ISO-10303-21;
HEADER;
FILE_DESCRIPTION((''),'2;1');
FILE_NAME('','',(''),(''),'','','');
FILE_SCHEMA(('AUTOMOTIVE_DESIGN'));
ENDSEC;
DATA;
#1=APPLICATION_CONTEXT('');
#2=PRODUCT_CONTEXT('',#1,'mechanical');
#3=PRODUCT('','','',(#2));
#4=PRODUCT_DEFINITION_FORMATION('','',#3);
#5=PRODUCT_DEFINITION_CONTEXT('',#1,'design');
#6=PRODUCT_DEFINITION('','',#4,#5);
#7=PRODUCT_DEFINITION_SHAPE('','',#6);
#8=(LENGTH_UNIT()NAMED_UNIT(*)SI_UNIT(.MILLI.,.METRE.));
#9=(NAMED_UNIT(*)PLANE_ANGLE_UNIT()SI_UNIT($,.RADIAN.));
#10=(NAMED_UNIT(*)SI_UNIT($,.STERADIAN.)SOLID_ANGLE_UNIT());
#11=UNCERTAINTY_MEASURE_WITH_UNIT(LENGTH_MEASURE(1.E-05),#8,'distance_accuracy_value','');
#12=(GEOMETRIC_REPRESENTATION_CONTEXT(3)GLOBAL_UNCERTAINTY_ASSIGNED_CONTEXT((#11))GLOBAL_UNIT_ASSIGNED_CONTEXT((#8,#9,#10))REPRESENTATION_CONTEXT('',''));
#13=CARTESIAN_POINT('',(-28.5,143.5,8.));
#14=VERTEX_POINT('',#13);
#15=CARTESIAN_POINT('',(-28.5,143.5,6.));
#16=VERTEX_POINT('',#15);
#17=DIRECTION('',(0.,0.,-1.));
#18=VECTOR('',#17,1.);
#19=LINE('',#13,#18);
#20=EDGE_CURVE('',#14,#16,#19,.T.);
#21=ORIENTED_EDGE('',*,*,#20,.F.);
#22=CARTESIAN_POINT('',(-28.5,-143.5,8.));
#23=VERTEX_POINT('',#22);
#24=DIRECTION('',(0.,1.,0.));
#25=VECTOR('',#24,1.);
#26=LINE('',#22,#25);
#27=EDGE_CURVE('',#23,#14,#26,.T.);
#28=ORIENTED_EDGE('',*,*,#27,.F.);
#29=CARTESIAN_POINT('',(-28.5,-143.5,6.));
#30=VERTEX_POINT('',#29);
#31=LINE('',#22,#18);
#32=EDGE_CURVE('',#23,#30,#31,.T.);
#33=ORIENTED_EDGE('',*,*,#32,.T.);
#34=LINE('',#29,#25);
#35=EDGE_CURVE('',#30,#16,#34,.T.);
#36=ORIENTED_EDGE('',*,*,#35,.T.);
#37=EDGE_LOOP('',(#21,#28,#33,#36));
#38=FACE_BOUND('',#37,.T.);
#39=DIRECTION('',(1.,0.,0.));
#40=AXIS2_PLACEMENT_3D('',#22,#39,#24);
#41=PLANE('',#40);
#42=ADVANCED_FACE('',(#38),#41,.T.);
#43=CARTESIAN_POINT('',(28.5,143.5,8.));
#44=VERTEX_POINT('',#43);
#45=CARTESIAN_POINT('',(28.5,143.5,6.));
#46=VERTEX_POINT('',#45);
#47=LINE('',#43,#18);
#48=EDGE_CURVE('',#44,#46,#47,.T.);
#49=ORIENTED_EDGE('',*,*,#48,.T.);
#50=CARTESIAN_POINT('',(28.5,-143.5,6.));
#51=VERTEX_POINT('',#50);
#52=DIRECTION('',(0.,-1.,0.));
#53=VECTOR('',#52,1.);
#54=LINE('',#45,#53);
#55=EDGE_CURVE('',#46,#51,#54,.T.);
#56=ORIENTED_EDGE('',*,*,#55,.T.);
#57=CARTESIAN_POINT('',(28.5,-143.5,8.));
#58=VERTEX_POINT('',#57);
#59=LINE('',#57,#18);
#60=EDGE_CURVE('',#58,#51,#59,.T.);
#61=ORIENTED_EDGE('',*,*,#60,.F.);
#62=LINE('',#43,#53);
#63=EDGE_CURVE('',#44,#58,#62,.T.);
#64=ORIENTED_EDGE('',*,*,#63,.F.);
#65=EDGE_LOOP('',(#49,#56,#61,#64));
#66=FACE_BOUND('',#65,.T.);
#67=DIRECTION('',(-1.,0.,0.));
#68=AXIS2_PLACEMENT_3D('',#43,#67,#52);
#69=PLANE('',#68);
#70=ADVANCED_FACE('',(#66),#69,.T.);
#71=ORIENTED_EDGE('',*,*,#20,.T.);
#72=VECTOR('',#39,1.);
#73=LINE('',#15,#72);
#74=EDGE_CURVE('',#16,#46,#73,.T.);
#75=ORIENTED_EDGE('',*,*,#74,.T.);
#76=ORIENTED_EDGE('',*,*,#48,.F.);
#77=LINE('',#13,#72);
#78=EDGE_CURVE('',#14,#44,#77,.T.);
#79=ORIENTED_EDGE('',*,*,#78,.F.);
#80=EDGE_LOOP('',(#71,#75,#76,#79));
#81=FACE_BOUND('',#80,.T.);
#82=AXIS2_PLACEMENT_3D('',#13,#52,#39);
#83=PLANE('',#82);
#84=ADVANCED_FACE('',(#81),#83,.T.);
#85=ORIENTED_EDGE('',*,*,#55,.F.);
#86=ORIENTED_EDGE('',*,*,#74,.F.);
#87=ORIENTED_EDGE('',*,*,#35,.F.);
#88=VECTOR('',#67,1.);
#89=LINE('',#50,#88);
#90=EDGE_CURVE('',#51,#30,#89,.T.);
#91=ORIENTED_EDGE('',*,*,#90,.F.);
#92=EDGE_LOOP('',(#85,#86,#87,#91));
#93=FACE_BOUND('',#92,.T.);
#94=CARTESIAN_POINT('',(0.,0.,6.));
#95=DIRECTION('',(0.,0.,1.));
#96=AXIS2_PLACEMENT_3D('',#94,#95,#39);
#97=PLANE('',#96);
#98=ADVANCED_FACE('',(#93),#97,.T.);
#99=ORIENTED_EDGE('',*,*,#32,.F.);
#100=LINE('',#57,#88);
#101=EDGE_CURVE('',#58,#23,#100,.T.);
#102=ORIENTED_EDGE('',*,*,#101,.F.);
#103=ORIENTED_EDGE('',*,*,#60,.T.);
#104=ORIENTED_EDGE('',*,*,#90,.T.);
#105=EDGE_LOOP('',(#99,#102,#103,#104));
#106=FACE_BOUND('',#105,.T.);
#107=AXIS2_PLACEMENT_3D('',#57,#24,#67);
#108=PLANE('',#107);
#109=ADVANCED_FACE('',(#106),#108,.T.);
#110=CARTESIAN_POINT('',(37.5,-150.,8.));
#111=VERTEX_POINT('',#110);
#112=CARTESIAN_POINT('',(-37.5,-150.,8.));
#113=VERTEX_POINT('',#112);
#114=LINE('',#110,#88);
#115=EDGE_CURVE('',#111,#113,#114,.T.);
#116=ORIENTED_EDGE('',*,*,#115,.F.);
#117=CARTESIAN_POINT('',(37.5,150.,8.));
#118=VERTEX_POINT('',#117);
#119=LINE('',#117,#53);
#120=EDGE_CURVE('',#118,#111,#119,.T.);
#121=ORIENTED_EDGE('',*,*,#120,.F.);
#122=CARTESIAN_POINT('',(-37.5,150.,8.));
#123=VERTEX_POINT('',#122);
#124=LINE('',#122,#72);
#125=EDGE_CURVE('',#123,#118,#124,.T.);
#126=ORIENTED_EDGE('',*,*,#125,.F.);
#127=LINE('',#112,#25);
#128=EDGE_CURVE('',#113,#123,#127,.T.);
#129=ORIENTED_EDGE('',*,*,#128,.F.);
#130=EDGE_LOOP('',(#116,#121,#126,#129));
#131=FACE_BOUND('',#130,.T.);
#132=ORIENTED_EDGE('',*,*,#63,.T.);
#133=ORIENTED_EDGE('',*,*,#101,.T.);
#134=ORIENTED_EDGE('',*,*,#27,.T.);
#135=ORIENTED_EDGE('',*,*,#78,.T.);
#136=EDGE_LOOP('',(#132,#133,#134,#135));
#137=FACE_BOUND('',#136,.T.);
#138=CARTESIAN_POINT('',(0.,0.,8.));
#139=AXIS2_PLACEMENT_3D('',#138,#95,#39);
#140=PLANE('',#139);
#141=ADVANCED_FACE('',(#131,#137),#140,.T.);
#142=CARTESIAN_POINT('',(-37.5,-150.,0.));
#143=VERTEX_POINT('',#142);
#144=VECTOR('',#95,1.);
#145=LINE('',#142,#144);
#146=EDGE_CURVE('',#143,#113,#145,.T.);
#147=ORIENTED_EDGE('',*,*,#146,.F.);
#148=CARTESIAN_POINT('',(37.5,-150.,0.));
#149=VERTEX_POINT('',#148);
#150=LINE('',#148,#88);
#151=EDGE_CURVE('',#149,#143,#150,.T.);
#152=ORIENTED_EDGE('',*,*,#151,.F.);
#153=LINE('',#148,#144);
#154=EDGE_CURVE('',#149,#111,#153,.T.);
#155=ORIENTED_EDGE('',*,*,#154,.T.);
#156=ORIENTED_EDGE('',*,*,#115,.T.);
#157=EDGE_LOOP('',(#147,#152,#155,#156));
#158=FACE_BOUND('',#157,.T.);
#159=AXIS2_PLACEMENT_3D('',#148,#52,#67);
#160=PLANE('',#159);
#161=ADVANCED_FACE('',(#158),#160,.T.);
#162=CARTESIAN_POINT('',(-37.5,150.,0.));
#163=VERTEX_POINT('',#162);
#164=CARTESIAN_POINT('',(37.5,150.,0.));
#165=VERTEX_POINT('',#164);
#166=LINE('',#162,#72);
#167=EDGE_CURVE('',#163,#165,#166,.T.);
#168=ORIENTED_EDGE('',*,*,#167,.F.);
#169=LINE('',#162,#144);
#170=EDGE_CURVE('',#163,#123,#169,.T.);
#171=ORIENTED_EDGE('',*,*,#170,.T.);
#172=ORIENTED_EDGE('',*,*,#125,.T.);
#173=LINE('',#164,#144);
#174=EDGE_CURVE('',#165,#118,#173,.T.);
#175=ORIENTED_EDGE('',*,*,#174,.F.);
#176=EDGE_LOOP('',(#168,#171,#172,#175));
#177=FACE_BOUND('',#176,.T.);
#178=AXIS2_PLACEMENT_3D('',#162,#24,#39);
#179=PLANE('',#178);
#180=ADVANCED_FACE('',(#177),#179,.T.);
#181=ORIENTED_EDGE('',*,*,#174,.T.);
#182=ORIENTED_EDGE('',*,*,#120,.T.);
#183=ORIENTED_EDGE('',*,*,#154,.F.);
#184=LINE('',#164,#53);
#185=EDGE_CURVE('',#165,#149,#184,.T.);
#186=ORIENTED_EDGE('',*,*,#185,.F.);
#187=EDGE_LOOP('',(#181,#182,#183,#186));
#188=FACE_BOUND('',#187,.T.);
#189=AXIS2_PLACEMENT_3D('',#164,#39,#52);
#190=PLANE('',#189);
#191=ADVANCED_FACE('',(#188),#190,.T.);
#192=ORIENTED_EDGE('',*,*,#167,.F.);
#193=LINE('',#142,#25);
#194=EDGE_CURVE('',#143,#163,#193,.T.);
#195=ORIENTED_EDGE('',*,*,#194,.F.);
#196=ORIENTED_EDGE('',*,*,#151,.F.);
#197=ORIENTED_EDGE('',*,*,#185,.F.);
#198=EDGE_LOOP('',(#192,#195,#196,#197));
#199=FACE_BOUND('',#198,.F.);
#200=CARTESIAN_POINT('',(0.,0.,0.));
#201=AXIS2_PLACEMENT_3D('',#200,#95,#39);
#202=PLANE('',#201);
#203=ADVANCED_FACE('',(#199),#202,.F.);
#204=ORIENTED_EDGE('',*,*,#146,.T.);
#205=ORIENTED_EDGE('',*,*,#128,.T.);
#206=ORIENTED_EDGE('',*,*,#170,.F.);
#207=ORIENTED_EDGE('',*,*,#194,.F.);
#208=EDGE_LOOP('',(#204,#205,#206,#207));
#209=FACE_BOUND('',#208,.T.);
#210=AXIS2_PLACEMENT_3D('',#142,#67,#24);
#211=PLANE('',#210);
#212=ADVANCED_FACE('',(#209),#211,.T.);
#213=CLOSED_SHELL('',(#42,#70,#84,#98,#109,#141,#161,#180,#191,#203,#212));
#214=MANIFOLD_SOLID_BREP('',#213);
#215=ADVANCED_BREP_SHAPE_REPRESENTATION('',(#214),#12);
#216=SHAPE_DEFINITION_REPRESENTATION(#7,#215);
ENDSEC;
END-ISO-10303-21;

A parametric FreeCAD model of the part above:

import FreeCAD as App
import Part
import Sketcher
from FreeCAD import Vector
Q = App.Units.Quantity


def add_polygon(sketch, points):
    """Adds a closed chain of lines whose ends are joined by coincident constraints."""
    first, n = sketch.GeometryCount, len(points)
    for a, b in zip(points, points[1:] + points[:1]):
        sketch.addGeometry(Part.LineSegment(App.Vector(*a, 0), App.Vector(*b, 0)), False)
    for i in range(n):
        sketch.addConstraint(Sketcher.Constraint("Coincident", first + i, 2, first + (i + 1) % n, 1))

doc = App.newDocument("Part")
body = doc.addObject("PartDesign::Body", "Body")

sketch1 = body.newObject("Sketcher::SketchObject", "Sketch")
sketch1.AttachmentSupport = (doc.getObject("XY_Plane"), [""])
sketch1.MapMode = "FlatFace"
add_polygon(sketch1, [(37.5, 150), (-37.5, 150), (-37.5, -150), (37.5, -150)])
sketch1.addConstraint([
    Sketcher.Constraint("Horizontal", 0),
    Sketcher.Constraint("Vertical", 1),
    Sketcher.Constraint("Horizontal", 2),
    Sketcher.Constraint("Vertical", 3),
    Sketcher.Constraint("Symmetric", 0, 2, 2, 2, -1, 1),
    Sketcher.Constraint("DistanceX", 0, 2, 0, 1, Q("75 mm")),
    Sketcher.Constraint("DistanceY", 1, 2, 1, 1, Q("300 mm")),
])
pad1 = body.newObject("PartDesign::Pad", "Pad")
pad1.Profile = sketch1
pad1.Length = 8

sketch2 = body.newObject("Sketcher::SketchObject", "Sketch001")
sketch2.AttachmentSupport = (doc.getObject("XY_Plane"), [""])
sketch2.MapMode = "FlatFace"
sketch2.AttachmentOffset = App.Placement(Vector(0, 0, 8), App.Rotation())
add_polygon(sketch2, [(28.5, 143.5), (-28.5, 143.5), (-28.5, -143.5), (28.5, -143.5)])
sketch2.addConstraint([
    Sketcher.Constraint("Horizontal", 0),
    Sketcher.Constraint("Vertical", 1),
    Sketcher.Constraint("Horizontal", 2),
    Sketcher.Constraint("Vertical", 3),
    Sketcher.Constraint("Symmetric", 0, 2, 2, 2, -1, 1),
    Sketcher.Constraint("DistanceX", 0, 2, 0, 1, Q("57 mm")),
    Sketcher.Constraint("DistanceY", 1, 2, 1, 1, Q("287 mm")),
])
pocket1 = body.newObject("PartDesign::Pocket", "Pocket")
pocket1.Profile = sketch2
pocket1.Length = 2

doc.recompute()
